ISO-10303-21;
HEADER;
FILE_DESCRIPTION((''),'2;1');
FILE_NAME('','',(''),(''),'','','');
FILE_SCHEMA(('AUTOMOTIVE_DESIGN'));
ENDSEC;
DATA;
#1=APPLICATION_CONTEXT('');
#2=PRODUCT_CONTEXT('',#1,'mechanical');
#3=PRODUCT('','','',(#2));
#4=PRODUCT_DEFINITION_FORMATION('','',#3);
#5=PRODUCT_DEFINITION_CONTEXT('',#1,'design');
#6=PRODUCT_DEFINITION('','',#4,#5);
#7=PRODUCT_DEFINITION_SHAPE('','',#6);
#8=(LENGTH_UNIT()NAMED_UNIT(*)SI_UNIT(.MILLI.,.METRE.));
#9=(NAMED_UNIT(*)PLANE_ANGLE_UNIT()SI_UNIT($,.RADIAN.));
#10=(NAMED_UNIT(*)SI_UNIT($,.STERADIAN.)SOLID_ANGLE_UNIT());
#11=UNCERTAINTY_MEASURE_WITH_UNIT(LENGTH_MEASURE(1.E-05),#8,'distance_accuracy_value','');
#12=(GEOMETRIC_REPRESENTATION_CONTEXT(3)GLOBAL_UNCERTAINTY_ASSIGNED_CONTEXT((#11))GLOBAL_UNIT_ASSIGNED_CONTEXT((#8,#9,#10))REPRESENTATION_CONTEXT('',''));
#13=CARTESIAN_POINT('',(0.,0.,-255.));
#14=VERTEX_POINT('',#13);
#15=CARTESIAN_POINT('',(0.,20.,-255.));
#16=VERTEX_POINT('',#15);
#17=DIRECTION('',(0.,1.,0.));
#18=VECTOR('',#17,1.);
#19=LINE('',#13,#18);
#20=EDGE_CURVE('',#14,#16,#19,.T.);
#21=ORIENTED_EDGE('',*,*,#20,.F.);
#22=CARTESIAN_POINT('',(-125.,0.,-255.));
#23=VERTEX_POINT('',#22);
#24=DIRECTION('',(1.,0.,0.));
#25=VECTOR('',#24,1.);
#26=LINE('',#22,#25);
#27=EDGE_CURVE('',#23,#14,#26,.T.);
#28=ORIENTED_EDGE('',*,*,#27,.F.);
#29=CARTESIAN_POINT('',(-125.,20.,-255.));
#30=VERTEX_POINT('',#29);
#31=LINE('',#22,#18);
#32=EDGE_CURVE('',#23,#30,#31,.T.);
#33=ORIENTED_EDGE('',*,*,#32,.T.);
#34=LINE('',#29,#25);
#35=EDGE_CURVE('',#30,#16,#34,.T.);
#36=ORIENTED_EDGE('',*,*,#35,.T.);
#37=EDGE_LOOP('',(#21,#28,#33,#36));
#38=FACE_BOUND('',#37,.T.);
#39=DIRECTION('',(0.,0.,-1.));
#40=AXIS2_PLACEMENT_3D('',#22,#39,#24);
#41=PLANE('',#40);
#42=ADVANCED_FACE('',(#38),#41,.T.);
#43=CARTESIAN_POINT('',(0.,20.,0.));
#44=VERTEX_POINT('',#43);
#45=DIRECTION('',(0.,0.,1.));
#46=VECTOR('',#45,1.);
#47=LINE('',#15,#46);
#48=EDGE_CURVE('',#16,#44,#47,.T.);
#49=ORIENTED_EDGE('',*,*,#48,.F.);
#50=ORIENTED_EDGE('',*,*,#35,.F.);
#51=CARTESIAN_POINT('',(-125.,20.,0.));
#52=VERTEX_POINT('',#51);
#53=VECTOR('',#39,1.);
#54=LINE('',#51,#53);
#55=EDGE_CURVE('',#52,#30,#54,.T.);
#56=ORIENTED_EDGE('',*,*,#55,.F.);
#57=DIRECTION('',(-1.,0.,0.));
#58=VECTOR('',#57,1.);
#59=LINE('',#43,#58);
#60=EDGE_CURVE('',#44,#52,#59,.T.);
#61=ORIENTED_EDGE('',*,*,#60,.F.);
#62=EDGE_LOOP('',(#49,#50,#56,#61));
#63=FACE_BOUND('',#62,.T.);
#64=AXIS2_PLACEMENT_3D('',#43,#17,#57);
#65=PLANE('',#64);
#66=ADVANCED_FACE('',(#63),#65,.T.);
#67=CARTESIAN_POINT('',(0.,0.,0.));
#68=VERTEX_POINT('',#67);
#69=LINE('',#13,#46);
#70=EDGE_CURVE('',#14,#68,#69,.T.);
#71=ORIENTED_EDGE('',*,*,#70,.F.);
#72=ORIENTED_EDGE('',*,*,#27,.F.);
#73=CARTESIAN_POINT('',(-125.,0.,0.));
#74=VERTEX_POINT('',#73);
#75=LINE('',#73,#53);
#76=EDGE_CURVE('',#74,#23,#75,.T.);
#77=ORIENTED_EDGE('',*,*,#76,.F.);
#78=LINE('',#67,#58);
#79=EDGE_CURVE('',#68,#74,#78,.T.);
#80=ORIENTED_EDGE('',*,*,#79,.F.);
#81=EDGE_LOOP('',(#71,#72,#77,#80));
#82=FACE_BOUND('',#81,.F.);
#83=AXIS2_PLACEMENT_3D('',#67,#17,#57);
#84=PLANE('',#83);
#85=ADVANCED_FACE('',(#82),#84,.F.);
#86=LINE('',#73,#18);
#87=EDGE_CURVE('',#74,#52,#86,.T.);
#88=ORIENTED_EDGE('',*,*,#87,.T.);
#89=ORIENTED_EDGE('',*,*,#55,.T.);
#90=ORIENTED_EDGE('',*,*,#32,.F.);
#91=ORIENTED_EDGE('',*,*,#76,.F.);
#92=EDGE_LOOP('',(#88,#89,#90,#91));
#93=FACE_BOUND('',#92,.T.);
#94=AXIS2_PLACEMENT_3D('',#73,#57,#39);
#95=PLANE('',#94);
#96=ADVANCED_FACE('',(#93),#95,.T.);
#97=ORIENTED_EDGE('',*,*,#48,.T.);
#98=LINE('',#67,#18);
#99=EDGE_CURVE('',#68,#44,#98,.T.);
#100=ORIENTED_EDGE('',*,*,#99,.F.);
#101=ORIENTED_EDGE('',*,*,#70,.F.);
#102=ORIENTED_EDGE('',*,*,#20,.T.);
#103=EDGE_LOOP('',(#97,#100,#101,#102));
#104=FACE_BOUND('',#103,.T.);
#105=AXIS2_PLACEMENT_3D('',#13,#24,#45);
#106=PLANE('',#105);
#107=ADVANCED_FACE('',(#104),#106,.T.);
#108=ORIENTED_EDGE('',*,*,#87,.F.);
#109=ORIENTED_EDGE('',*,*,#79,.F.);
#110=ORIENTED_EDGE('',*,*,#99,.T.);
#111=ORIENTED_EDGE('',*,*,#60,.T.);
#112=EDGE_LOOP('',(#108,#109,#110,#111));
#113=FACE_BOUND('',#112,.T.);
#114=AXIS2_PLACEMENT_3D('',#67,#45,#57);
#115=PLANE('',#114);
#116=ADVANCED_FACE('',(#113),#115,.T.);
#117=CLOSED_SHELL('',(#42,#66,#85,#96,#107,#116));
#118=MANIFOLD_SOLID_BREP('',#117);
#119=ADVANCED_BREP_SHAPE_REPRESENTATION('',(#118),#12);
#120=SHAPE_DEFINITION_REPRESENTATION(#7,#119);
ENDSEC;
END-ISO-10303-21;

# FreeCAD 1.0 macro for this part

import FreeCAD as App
import Part
import Sketcher

doc = App.newDocument("Part")
body = doc.addObject("PartDesign::Body", "Body")

sketch1 = body.newObject("Sketcher::SketchObject", "Sketch")
sketch1.AttachmentSupport = (doc.getObject("XZ_Plane"), [""])
sketch1.MapMode = "FlatFace"
sketch1.addGeometry(Part.LineSegment(App.Vector(-125, 0, 0), App.Vector(0, 0, 0)), False)
sketch1.addGeometry(Part.LineSegment(App.Vector(0, 0, 0), App.Vector(0, -255, 0)), False)
sketch1.addGeometry(Part.LineSegment(App.Vector(0, -255, 0), App.Vector(-125, -255, 0)), False)
sketch1.addGeometry(Part.LineSegment(App.Vector(-125, -255, 0), App.Vector(-125, 0, 0)), False)
sketch1.addConstraint(Sketcher.Constraint("Coincident", 0, 2, 1, 1))
sketch1.addConstraint(Sketcher.Constraint("Coincident", 1, 2, 2, 1))
sketch1.addConstraint(Sketcher.Constraint("Coincident", 2, 2, 3, 1))
sketch1.addConstraint(Sketcher.Constraint("Coincident", 3, 2, 0, 1))
sketch1.addConstraint(Sketcher.Constraint("Horizontal", 0))
sketch1.addConstraint(Sketcher.Constraint("Vertical", 1))
sketch1.addConstraint(Sketcher.Constraint("Horizontal", 2))
sketch1.addConstraint(Sketcher.Constraint("Vertical", 3))
sketch1.addConstraint(Sketcher.Constraint("Coincident", 0, 2, -1, 1))
sketch1.addConstraint(Sketcher.Constraint("DistanceX", 0, 1, 0, 2, 125.0))
sketch1.addConstraint(Sketcher.Constraint("DistanceY", 1, 2, 1, 1, 255.0))
pad1 = body.newObject("PartDesign::Pad", "Pad")
pad1.Profile = sketch1
pad1.Length = 20
pad1.Reversed = True

doc.recompute()
